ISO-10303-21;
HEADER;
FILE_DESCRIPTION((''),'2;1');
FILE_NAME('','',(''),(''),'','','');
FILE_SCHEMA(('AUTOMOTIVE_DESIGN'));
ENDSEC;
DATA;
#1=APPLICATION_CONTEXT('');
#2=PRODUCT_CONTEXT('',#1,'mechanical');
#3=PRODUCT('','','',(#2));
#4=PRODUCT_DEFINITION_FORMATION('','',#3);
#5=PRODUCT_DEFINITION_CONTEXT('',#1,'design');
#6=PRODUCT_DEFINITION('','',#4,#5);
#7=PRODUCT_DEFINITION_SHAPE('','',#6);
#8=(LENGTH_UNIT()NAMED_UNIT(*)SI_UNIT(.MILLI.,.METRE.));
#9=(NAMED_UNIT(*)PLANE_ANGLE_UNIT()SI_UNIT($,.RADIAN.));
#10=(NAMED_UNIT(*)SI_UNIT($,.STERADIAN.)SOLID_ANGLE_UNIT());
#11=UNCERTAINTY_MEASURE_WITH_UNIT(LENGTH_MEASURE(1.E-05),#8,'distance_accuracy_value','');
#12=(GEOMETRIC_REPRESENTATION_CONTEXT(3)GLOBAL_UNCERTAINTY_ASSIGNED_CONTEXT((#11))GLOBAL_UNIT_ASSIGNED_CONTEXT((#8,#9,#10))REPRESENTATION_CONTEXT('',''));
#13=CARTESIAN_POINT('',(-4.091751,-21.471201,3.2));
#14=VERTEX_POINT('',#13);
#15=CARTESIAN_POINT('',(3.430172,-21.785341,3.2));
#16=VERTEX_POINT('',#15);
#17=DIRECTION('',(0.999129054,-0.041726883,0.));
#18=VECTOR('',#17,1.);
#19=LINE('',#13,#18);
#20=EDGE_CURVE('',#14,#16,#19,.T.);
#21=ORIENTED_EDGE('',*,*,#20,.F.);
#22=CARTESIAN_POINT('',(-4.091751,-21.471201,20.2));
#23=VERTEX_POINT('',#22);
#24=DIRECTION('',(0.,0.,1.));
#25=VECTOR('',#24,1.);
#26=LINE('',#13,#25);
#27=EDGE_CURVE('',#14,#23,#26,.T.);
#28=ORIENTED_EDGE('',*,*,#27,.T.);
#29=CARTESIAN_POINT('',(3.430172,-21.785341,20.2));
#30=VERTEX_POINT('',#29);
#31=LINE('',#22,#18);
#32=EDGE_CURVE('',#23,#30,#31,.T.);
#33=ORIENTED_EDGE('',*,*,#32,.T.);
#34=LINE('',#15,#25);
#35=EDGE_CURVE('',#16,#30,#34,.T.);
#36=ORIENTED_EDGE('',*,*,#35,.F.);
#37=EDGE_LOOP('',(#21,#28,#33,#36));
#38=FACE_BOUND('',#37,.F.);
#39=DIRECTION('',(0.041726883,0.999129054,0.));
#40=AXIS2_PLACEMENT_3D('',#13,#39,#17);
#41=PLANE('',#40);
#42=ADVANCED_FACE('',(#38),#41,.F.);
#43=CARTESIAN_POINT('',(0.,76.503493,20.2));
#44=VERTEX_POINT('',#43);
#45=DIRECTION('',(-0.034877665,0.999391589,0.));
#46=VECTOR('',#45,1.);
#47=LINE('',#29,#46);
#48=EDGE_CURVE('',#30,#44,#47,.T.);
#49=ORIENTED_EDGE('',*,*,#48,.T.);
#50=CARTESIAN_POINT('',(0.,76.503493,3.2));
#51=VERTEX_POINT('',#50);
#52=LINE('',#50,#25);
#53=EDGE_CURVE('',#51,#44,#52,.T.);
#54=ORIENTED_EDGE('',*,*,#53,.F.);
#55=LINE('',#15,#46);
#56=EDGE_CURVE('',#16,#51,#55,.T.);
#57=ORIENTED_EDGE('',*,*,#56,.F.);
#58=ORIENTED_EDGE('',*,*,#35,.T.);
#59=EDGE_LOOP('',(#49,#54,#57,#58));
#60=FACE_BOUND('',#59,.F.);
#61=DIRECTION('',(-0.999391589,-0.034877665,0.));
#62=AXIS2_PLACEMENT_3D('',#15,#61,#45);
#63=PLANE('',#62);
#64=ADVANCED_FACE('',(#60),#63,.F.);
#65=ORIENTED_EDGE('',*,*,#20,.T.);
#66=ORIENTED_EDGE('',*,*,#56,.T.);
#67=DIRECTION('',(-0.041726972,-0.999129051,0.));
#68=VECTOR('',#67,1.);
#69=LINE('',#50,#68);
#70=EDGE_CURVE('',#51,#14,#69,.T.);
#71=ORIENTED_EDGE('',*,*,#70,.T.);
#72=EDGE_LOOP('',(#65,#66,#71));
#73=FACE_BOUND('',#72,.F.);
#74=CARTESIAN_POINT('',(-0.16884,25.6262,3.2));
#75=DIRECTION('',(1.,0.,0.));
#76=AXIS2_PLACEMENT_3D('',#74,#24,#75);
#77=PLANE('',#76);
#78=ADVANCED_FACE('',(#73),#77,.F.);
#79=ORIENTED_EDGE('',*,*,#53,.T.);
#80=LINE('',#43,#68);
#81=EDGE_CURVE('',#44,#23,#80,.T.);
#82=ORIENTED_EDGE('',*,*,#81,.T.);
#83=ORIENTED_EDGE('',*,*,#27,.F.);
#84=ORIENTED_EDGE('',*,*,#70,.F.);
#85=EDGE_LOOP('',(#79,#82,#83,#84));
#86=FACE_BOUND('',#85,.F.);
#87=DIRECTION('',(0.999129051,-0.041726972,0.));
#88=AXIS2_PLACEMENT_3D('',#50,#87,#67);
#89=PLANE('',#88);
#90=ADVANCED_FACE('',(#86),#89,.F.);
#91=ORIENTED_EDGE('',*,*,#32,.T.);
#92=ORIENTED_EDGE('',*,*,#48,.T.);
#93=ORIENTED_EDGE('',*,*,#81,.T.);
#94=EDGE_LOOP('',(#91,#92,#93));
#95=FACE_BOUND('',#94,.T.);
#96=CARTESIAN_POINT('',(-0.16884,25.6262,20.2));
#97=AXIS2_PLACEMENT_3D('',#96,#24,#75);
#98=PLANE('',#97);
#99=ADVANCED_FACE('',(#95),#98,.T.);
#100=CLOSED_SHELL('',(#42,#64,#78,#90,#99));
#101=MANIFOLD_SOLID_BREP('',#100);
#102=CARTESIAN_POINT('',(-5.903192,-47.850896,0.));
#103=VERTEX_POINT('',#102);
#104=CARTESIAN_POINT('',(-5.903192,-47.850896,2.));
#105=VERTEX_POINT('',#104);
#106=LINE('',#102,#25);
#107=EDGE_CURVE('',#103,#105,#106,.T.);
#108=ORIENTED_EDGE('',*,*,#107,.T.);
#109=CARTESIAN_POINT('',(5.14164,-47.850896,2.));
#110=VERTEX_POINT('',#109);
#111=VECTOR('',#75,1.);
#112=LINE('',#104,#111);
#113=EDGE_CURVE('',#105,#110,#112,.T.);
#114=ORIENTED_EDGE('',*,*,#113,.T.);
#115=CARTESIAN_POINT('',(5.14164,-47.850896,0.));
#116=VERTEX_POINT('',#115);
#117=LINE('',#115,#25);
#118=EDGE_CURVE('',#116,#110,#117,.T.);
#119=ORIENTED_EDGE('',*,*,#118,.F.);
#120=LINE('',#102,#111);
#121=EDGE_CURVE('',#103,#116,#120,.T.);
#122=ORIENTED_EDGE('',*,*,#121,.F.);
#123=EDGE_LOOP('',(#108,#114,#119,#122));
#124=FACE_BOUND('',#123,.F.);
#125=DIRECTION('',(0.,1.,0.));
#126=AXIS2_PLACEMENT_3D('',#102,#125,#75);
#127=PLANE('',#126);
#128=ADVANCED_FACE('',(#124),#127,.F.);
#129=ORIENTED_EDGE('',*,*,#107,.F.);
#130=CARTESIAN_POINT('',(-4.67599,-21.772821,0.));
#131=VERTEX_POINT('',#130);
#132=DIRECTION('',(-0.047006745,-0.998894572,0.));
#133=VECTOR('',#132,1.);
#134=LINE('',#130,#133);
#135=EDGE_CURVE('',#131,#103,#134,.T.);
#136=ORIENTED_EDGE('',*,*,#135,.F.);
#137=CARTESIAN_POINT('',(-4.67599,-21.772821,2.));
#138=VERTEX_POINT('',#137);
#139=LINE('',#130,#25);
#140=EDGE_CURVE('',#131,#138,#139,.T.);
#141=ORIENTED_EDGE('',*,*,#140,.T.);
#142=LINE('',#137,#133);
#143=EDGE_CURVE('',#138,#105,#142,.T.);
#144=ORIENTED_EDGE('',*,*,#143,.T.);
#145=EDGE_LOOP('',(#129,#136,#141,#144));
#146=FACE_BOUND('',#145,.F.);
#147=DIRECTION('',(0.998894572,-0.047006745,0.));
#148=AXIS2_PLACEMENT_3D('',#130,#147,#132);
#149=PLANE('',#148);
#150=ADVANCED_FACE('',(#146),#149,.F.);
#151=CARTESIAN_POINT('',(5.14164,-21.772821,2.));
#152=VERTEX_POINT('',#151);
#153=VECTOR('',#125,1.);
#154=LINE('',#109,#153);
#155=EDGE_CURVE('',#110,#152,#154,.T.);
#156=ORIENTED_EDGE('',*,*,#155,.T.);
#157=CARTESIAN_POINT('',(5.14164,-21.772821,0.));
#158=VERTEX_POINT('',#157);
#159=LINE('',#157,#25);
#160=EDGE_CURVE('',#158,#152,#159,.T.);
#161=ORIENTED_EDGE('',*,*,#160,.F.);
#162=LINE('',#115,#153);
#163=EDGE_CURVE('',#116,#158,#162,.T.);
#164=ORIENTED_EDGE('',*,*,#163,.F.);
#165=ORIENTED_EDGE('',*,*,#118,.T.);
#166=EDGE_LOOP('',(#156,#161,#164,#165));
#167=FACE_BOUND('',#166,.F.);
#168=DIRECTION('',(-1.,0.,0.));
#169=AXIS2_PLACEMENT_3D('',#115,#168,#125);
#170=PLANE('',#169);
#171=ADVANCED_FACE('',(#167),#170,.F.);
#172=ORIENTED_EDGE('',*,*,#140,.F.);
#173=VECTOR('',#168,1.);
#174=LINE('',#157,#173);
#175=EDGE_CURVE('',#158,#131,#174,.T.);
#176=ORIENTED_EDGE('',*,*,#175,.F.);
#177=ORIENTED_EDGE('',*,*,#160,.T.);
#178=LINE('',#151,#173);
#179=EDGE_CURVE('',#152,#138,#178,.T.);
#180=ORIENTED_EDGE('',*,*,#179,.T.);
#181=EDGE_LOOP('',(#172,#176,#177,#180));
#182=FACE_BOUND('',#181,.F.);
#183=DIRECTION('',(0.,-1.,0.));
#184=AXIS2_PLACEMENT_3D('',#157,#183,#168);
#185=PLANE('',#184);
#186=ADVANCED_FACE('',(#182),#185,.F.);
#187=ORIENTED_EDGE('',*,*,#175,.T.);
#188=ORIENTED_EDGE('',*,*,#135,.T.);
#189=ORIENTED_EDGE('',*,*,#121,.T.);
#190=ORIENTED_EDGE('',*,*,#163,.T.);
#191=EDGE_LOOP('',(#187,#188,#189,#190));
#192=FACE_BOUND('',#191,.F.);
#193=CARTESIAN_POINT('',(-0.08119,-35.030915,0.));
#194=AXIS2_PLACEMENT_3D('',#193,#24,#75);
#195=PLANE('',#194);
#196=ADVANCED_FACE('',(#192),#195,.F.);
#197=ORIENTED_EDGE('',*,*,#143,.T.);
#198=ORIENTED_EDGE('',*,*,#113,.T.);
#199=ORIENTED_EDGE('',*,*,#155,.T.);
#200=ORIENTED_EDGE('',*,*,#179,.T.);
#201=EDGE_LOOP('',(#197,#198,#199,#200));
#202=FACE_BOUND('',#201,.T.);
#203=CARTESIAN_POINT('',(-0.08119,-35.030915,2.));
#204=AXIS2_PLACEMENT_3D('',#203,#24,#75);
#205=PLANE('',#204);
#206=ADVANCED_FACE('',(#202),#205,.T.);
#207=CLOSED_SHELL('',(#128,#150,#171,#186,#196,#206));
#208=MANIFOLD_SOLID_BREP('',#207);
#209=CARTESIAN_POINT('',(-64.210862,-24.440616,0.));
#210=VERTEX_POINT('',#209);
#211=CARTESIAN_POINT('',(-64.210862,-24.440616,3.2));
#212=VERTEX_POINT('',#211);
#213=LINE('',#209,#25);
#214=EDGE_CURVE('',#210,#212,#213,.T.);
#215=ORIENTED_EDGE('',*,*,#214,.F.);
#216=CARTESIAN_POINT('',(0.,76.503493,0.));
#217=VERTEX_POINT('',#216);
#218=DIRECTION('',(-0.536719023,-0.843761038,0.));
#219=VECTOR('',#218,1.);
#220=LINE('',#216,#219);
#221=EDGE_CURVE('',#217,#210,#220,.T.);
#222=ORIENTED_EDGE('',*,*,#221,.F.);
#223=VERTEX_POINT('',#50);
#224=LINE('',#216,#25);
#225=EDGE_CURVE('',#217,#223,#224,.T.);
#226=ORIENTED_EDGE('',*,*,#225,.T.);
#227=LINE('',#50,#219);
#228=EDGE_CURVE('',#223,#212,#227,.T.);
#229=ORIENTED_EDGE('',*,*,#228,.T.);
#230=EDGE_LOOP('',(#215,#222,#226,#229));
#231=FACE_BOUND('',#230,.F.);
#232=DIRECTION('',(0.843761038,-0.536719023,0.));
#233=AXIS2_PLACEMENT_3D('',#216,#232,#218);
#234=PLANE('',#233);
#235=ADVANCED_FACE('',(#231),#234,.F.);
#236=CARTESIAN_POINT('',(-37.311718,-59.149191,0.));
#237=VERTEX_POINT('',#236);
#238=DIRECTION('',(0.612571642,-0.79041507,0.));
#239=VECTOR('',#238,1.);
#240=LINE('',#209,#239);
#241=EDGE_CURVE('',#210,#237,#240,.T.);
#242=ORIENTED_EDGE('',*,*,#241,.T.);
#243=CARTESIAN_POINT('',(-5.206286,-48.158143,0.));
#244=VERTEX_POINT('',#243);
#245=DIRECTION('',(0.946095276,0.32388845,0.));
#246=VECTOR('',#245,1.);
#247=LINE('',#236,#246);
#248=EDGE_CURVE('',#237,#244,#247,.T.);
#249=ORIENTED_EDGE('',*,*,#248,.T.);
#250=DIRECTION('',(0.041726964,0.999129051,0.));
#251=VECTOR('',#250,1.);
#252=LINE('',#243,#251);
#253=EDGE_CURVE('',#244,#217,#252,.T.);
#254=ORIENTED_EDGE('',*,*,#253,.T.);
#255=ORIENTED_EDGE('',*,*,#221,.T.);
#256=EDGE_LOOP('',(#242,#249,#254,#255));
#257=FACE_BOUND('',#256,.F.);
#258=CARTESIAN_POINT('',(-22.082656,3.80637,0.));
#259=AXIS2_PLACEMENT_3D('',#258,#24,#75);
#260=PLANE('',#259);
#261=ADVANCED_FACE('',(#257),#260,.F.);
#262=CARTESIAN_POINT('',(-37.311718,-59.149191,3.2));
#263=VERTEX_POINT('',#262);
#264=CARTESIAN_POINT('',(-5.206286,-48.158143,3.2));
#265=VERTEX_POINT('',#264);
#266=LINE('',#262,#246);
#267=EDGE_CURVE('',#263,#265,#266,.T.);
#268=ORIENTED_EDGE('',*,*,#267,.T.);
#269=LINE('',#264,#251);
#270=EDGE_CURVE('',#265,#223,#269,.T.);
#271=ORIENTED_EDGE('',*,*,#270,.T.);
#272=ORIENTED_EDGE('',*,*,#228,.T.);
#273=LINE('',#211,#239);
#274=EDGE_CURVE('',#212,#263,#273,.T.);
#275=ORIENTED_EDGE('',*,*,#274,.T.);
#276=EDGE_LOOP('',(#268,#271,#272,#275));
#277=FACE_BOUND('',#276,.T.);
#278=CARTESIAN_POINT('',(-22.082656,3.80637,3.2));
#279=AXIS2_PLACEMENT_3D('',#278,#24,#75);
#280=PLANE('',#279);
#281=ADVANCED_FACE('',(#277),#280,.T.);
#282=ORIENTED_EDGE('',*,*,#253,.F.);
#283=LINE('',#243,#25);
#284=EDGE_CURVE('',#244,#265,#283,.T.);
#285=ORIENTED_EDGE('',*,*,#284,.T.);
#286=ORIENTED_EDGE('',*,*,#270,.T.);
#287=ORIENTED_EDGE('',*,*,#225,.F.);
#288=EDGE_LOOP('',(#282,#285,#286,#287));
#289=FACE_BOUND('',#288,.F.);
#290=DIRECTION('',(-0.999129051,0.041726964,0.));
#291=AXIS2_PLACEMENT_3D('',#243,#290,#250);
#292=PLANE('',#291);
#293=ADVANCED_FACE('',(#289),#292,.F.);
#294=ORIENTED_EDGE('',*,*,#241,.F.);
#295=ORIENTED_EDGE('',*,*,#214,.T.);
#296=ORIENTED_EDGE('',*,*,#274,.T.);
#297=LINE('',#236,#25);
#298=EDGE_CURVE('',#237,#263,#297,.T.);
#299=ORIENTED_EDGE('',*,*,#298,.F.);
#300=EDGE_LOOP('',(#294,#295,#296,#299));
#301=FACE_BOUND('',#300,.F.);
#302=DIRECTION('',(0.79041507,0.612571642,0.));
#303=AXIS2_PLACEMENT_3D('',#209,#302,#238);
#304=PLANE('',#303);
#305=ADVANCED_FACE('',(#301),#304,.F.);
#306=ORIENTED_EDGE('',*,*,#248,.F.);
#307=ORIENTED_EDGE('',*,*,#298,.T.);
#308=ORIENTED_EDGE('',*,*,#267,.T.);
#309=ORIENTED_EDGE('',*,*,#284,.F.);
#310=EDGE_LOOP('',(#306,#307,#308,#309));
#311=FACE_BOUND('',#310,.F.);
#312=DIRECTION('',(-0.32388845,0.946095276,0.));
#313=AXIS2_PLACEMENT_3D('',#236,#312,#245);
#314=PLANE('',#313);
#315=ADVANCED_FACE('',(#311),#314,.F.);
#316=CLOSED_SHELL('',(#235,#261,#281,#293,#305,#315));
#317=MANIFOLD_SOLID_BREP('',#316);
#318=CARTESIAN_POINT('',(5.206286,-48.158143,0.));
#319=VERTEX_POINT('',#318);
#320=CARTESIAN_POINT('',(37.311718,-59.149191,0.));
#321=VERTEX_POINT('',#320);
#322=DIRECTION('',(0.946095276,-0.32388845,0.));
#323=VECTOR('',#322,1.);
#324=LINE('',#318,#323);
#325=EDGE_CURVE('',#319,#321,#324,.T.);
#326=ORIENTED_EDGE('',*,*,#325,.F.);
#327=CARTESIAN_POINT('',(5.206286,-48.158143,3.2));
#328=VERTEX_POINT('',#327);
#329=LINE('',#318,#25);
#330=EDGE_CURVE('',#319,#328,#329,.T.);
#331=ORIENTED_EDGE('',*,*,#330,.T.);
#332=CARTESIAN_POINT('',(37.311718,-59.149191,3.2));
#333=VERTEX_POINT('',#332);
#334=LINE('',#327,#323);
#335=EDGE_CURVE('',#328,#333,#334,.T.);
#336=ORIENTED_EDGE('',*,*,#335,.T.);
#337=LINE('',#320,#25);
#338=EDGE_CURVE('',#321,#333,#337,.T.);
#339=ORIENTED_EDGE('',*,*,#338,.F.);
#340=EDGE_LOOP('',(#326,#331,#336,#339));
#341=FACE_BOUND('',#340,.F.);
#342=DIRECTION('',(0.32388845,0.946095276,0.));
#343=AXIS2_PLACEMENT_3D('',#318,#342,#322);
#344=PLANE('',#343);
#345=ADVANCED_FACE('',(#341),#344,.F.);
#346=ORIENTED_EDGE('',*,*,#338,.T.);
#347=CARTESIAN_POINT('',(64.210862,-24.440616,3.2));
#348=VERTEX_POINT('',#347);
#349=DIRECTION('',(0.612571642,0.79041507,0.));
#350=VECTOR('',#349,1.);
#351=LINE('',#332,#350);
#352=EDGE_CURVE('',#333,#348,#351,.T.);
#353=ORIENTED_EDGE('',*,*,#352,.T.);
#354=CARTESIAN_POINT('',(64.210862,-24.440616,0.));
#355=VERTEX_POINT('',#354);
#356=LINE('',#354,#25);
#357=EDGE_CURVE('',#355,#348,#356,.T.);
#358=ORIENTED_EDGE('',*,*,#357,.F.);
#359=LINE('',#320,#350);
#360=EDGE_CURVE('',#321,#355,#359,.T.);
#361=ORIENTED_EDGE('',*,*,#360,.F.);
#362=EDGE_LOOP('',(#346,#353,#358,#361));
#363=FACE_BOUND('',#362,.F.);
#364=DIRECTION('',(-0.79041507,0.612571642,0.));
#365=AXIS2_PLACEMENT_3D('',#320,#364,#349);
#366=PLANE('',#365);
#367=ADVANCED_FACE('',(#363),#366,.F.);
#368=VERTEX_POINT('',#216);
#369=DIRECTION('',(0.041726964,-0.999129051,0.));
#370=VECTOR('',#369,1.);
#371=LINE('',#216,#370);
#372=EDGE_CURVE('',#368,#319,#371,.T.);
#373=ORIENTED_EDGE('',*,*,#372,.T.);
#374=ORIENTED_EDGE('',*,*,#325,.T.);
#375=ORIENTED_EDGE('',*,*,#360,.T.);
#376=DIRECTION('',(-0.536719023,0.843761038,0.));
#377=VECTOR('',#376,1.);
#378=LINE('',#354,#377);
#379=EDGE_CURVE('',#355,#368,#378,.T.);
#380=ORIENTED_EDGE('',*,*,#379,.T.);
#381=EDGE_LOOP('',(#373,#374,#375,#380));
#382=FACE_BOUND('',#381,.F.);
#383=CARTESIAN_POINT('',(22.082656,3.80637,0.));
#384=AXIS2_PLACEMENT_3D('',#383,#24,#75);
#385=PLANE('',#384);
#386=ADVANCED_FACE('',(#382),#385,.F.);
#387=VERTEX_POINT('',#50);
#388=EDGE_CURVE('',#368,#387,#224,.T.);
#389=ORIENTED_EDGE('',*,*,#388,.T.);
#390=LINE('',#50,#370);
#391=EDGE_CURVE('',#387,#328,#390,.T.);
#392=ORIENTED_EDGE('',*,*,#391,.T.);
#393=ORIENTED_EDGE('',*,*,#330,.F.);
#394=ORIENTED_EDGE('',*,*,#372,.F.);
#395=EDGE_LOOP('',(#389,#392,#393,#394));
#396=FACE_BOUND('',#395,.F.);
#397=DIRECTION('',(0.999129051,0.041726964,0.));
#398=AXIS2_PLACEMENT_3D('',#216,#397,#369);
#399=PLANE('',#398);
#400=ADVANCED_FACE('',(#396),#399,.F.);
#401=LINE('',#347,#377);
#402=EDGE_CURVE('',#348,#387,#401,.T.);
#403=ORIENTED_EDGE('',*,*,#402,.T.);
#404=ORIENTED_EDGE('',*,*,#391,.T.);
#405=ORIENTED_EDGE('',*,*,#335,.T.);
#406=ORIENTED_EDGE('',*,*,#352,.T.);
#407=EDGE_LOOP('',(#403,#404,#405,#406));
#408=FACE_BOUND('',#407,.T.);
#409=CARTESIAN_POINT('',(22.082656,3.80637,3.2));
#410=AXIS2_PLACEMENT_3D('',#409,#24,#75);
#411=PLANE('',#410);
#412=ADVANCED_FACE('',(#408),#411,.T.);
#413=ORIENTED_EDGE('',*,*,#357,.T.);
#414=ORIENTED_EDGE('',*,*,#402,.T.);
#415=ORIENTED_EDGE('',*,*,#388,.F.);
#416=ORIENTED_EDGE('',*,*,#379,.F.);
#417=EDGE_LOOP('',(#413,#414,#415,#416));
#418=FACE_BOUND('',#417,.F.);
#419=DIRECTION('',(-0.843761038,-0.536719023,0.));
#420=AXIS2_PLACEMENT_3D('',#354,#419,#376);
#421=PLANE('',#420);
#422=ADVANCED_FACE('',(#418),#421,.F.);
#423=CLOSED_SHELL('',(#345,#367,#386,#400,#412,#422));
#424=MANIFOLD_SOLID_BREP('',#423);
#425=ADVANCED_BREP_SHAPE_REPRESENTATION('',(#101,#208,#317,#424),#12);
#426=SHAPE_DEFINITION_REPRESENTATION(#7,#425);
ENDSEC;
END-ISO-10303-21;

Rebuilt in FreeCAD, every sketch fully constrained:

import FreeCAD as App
import Part
import Sketcher


def add_polygon(sketch, points):
    """Adds a closed chain of lines whose ends are joined by coincident constraints."""
    first, n = sketch.GeometryCount, len(points)
    for a, b in zip(points, points[1:] + points[:1]):
        sketch.addGeometry(Part.LineSegment(App.Vector(*a, 0), App.Vector(*b, 0)), False)
    for i in range(n):
        sketch.addConstraint(Sketcher.Constraint("Coincident", first + i, 2, first + (i + 1) % n, 1))

doc = App.newDocument("Part")
params = doc.addObject("Spreadsheet::Sheet", "Params")
for row, (alias, value) in enumerate([
    ("pad1_length", "3.2 mm"),
    ("pad2_length", "17 mm"),
    ("pad3_length", "2 mm"),
], start=1):
    params.set(f"A{row}", alias)
    params.set(f"B{row}", "=" + value)
    params.setAlias(f"B{row}", alias)

body = doc.addObject("PartDesign::Body", "Body")
body.AllowCompound = True

sketch1 = body.newObject("Sketcher::SketchObject", "Sketch")
sketch1.AttachmentSupport = (doc.getObject("XY_Plane"), [""])
sketch1.MapMode = "FlatFace"
add_polygon(sketch1, [(-5.206286, -48.158143), (0, 76.503493), (-64.210862, -24.440616), (-37.311718, -59.149191)])
add_polygon(sketch1, [(64.210862, -24.440616), (0, 76.503493), (5.206286, -48.158143), (37.311718, -59.149191)])
sketch1.addConstraint([
    Sketcher.Constraint("Coincident", 4, 2, 0, 2),
    Sketcher.Constraint("Symmetric", 3, 2, 5, 2, -2),
    Sketcher.Constraint("Symmetric", 2, 2, 6, 2, -2),
    Sketcher.Constraint("Symmetric", 1, 2, 7, 2, -2),
    Sketcher.Constraint("PointOnObject", 0, 2, -2),
    Sketcher.Constraint("Distance", 3, 33.934671),
    Sketcher.Constraint("DistanceY", 2, 2, -1, 1, 59.149191),
    Sketcher.Constraint("DistanceY", 1, 2, 0, 2, 100.944109),
    Sketcher.Constraint("DistanceX", 1, 2, 5, 2, 69.417148),
    Sketcher.Constraint("DistanceX", 1, 2, 6, 2, 101.52258),
    Sketcher.Constraint("Distance", 0, 124.770305),
    Sketcher.Constraint("Distance", 1, 119.635897),
])
pad1 = body.newObject("PartDesign::Pad", "Pad")
pad1.Profile = sketch1
pad1.setExpression("Length", "Params.pad1_length")
body2 = doc.addObject("PartDesign::Body", "Body001")

sketch2 = body2.newObject("Sketcher::SketchObject", "Sketch001")
sketch2.AttachmentSupport = (doc.getObject("XY_Plane001"), [""])
sketch2.MapMode = "FlatFace"
sketch2.AttachmentOffset = App.Placement(App.Vector(0, 0, 3.2), App.Rotation())
add_polygon(sketch2, [(3.430172, -21.785341), (0, 76.503493), (-4.091751, -21.471201)])
sketch2.addConstraint([
    Sketcher.Constraint("PointOnObject", 0, 2, -2),
    Sketcher.Constraint("Perpendicular", 1, 2),
    Sketcher.Constraint("Distance", 1, 98.060099),
    Sketcher.Constraint("DistanceY", 1, 2, -1, 1, 21.471201),
    Sketcher.Constraint("Distance", 0, 98.34867),
    Sketcher.Constraint("DistanceX", 1, 2, -1, 1, 4.091751),
])
pad2 = body2.newObject("PartDesign::Pad", "Pad001")
pad2.Profile = sketch2
pad2.setExpression("Length", "Params.pad2_length")
body3 = doc.addObject("PartDesign::Body", "Body002")

sketch3 = body3.newObject("Sketcher::SketchObject", "Sketch002")
sketch3.AttachmentSupport = (doc.getObject("XY_Plane002"), [""])
sketch3.MapMode = "FlatFace"
add_polygon(sketch3, [(-4.67599, -21.772821), (-5.903192, -47.850896), (5.14164, -47.850896), (5.14164, -21.772821)])
sketch3.addConstraint([
    Sketcher.Constraint("Horizontal", 1),
    Sketcher.Constraint("Vertical", 2),
    Sketcher.Constraint("Horizontal", 3),
    Sketcher.Constraint("DistanceX", 3, 2, 3, 1, 9.81763),
    Sketcher.Constraint("DistanceX", 1, 1, 1, 2, 11.044832),
    Sketcher.Constraint("DistanceY", 2, 1, 2, 2, 26.078075),
    Sketcher.Constraint("DistanceX", 0, 2, -1, 1, 5.903192),
    Sketcher.Constraint("DistanceY", 2, 2, -1, 1, 21.772821),
])
pad3 = body3.newObject("PartDesign::Pad", "Pad002")
pad3.Profile = sketch3
pad3.setExpression("Length", "Params.pad3_length")

doc.recompute()
